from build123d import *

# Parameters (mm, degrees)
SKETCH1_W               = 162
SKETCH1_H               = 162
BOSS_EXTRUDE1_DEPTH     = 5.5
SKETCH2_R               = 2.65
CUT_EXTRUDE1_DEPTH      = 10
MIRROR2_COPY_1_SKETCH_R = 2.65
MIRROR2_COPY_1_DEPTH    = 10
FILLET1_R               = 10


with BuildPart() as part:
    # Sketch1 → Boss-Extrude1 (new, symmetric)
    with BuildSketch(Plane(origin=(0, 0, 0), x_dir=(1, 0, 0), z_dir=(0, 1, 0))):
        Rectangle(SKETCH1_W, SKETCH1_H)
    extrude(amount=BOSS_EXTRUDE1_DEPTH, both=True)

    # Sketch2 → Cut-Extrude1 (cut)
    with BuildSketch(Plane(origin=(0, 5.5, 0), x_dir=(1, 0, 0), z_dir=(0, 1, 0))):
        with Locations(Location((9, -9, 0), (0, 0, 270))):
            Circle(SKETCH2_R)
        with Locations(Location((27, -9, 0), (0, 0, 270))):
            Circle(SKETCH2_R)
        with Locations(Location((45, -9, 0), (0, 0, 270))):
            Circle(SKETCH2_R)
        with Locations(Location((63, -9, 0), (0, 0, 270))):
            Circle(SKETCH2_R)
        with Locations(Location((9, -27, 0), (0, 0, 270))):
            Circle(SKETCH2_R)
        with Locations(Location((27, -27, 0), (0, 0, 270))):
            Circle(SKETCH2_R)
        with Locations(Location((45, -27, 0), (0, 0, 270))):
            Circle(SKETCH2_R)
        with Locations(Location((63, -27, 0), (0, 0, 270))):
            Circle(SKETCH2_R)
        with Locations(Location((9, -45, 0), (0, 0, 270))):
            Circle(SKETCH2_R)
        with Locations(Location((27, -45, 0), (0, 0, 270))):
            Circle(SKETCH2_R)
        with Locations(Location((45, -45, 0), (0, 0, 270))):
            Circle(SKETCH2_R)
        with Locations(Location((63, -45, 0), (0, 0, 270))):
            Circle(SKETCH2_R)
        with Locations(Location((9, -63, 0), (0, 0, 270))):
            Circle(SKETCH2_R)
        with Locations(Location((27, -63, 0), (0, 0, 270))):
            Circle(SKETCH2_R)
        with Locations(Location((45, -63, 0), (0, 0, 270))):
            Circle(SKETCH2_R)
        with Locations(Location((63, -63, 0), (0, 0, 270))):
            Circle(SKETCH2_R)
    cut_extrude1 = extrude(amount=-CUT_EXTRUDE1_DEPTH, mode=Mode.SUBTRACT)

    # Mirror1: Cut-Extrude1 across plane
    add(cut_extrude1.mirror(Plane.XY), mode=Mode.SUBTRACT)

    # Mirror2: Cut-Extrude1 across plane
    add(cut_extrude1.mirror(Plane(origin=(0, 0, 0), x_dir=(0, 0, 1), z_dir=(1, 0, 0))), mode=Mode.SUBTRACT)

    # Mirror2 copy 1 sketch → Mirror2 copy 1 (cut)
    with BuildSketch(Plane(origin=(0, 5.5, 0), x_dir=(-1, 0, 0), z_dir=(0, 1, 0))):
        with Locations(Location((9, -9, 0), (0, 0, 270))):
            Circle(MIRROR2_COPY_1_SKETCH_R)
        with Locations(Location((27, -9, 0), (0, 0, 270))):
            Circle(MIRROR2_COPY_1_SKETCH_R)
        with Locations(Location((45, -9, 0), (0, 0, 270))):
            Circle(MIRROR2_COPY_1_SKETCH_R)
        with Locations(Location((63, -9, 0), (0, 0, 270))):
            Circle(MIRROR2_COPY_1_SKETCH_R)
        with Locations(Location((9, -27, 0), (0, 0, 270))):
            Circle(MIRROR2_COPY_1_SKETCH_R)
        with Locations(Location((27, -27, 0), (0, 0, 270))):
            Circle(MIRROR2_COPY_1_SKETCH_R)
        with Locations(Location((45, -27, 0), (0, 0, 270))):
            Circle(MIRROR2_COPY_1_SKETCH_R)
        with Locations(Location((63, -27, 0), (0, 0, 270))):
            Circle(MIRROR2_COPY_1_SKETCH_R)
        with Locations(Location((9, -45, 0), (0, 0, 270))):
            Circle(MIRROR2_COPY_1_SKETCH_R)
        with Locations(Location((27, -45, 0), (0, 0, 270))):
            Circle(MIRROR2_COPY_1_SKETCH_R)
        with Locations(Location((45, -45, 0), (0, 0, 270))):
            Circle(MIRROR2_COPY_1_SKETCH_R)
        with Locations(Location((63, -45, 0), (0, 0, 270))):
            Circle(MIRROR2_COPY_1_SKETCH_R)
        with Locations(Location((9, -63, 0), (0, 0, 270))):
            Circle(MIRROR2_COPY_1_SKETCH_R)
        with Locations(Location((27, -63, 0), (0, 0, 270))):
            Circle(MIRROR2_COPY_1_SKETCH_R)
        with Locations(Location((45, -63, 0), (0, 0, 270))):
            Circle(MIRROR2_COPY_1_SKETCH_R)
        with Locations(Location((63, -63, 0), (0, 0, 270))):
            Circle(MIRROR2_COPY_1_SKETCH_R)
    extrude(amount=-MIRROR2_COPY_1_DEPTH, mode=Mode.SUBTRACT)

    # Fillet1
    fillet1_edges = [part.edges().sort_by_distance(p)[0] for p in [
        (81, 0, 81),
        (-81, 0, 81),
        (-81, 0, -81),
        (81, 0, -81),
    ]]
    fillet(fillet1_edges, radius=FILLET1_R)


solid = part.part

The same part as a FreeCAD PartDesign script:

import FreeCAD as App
import Part
import Sketcher

V = App.Vector
Q = App.Units.Quantity


def edges_at(feature, points):
    """Names of the edges that pass closest to the given points."""
    edges = feature.Shape.Edges
    near = lambda p: min(range(len(edges)), key=lambda i: edges[i].distToShape(Part.Vertex(*p))[0])
    return sorted({f"Edge{near(p) + 1}" for p in points})


def add_polygon(sketch, points):
    """Adds a closed chain of lines whose ends are joined by coincident constraints."""
    first, n = sketch.GeometryCount, len(points)
    for a, b in zip(points, points[1:] + points[:1]):
        sketch.addGeometry(Part.LineSegment(App.Vector(*a, 0), App.Vector(*b, 0)), False)
    for i in range(n):
        sketch.addConstraint(Sketcher.Constraint("Coincident", first + i, 2, first + (i + 1) % n, 1))

doc = App.newDocument("Part")
params = doc.addObject("Spreadsheet::Sheet", "Params")
for row, (alias, value) in enumerate([
    ("sketch1_width", "162 mm"),
    ("pad1_length", "11 mm"),
    ("sketch2_diameter", "5.3 mm"),
    ("pocket1_length", "10 mm"),
    ("sketch3_diameter", "5.3 mm"),
    ("pocket2_length", "10 mm"),
    ("fillet_radius", "10 mm"),
], start=1):
    params.set(f"A{row}", alias)
    params.set(f"B{row}", "=" + value)
    params.setAlias(f"B{row}", alias)

body = doc.addObject("PartDesign::Body", "Body")

sketch1 = body.newObject("Sketcher::SketchObject", "Sketch")
sketch1.AttachmentSupport = (doc.getObject("XZ_Plane"), [""])
sketch1.MapMode = "FlatFace"
add_polygon(sketch1, [(-81, -81), (-81, 81), (81, 81), (81, -81)])
sketch1.addConstraint([
    Sketcher.Constraint("Vertical", 0),
    Sketcher.Constraint("Horizontal", 1),
    Sketcher.Constraint("Vertical", 2),
    Sketcher.Constraint("Horizontal", 3),
    Sketcher.Constraint("Symmetric", 0, 2, 2, 2, -1, 1),
    Sketcher.Constraint("Equal", 3, 0),
    Sketcher.Constraint("DistanceX", 1, 1, 1, 2, Q("162 mm")),
])
sketch1.setExpression("Constraints[10]", "Params.sketch1_width")
pad1 = body.newObject("PartDesign::Pad", "Pad")
pad1.Profile = sketch1
pad1.setExpression("Length", "Params.pad1_length")
pad1.Midplane = True

sketch2 = body.newObject("Sketcher::SketchObject", "Sketch001")
sketch2.AttachmentSupport = (doc.getObject("XZ_Plane"), [""])
sketch2.MapMode = "FlatFace"
sketch2.AttachmentOffset = App.Placement(V(0, 0, -5.5), App.Rotation())
sketch2.addGeometry([
    Part.Circle(V(9, 9, 0), V(0, 0, 1), 2.65),
    Part.Circle(V(27, 9, 0), V(0, 0, 1), 2.65),
    Part.Circle(V(45, 9, 0), V(0, 0, 1), 2.65),
    Part.Circle(V(63, 9, 0), V(0, 0, 1), 2.65),
    Part.Circle(V(9, 27, 0), V(0, 0, 1), 2.65),
    Part.Circle(V(27, 27, 0), V(0, 0, 1), 2.65),
    Part.Circle(V(45, 27, 0), V(0, 0, 1), 2.65),
    Part.Circle(V(63, 27, 0), V(0, 0, 1), 2.65),
    Part.Circle(V(9, 45, 0), V(0, 0, 1), 2.65),
    Part.Circle(V(27, 45, 0), V(0, 0, 1), 2.65),
    Part.Circle(V(45, 45, 0), V(0, 0, 1), 2.65),
    Part.Circle(V(63, 45, 0), V(0, 0, 1), 2.65),
    Part.Circle(V(9, 63, 0), V(0, 0, 1), 2.65),
    Part.Circle(V(27, 63, 0), V(0, 0, 1), 2.65),
    Part.Circle(V(45, 63, 0), V(0, 0, 1), 2.65),
    Part.Circle(V(63, 63, 0), V(0, 0, 1), 2.65),
], False)
sketch2.addConstraint([
    Sketcher.Constraint("Equal", 0, 1),
    Sketcher.Constraint("Equal", 1, 2),
    Sketcher.Constraint("Equal", 2, 3),
    Sketcher.Constraint("Equal", 3, 4),
    Sketcher.Constraint("Equal", 4, 5),
    Sketcher.Constraint("Equal", 5, 6),
    Sketcher.Constraint("Equal", 6, 7),
    Sketcher.Constraint("Equal", 7, 8),
    Sketcher.Constraint("Equal", 8, 9),
    Sketcher.Constraint("Equal", 9, 10),
    Sketcher.Constraint("Equal", 10, 11),
    Sketcher.Constraint("Equal", 11, 12),
    Sketcher.Constraint("Equal", 12, 13),
    Sketcher.Constraint("Equal", 13, 14),
    Sketcher.Constraint("Equal", 14, 15),
    Sketcher.Constraint("Horizontal", 0, 3, 1, 3),
    Sketcher.Constraint("Horizontal", 1, 3, 2, 3),
    Sketcher.Constraint("Horizontal", 2, 3, 3, 3),
    Sketcher.Constraint("Horizontal", 4, 3, 5, 3),
    Sketcher.Constraint("Horizontal", 5, 3, 6, 3),
    Sketcher.Constraint("Horizontal", 6, 3, 7, 3),
    Sketcher.Constraint("Horizontal", 8, 3, 9, 3),
    Sketcher.Constraint("Horizontal", 9, 3, 10, 3),
    Sketcher.Constraint("Horizontal", 10, 3, 11, 3),
    Sketcher.Constraint("Horizontal", 12, 3, 13, 3),
    Sketcher.Constraint("Horizontal", 13, 3, 14, 3),
    Sketcher.Constraint("Horizontal", 14, 3, 15, 3),
    Sketcher.Constraint("Vertical", 0, 3, 4, 3),
    Sketcher.Constraint("Vertical", 1, 3, 5, 3),
    Sketcher.Constraint("Vertical", 2, 3, 6, 3),
    Sketcher.Constraint("Vertical", 3, 3, 7, 3),
    Sketcher.Constraint("Vertical", 4, 3, 8, 3),
    Sketcher.Constraint("Vertical", 5, 3, 9, 3),
    Sketcher.Constraint("Vertical", 6, 3, 10, 3),
    Sketcher.Constraint("Vertical", 7, 3, 11, 3),
    Sketcher.Constraint("Vertical", 8, 3, 12, 3),
    Sketcher.Constraint("Vertical", 9, 3, 13, 3),
    Sketcher.Constraint("Vertical", 10, 3, 14, 3),
    Sketcher.Constraint("Vertical", 11, 3, 15, 3),
    Sketcher.Constraint("Diameter", 0, Q("5.3 mm")),
    Sketcher.Constraint("DistanceX", -1, 1, 0, 3, Q("9 mm")),
    Sketcher.Constraint("DistanceY", -1, 1, 0, 3, Q("9 mm")),
    Sketcher.Constraint("DistanceX", -1, 1, 1, 3, Q("27 mm")),
    Sketcher.Constraint("DistanceX", -1, 1, 2, 3, Q("45 mm")),
    Sketcher.Constraint("DistanceX", -1, 1, 3, 3, Q("63 mm")),
    Sketcher.Constraint("DistanceY", -1, 1, 4, 3, Q("27 mm")),
    Sketcher.Constraint("DistanceY", -1, 1, 8, 3, Q("45 mm")),
    Sketcher.Constraint("DistanceY", -1, 1, 12, 3, Q("63 mm")),
])
sketch2.setExpression("Constraints[39]", "Params.sketch2_diameter")
pocket1 = body.newObject("PartDesign::Pocket", "Pocket")
pocket1.Profile = sketch2
pocket1.setExpression("Length", "Params.pocket1_length")
pocket1.Reversed = True
doc.recompute()

mirrored = body.newObject("PartDesign::Mirrored", "Mirrored")
mirrored.Originals = [pocket1]
mirrored.MirrorPlane = (doc.getObject("XY_Plane"), [""])
body.Tip = mirrored
doc.recompute()

mirrored2 = body.newObject("PartDesign::Mirrored", "Mirrored001")
mirrored2.Originals = [pocket1]
mirrored2.MirrorPlane = (doc.getObject("YZ_Plane"), [""])
body.Tip = mirrored2

sketch3 = body.newObject("Sketcher::SketchObject", "Sketch002")
sketch3.AttachmentSupport = (doc.getObject("XZ_Plane"), [""])
sketch3.MapMode = "FlatFace"
sketch3.AttachmentOffset = App.Placement(V(0, 0, -5.5), App.Rotation())
sketch3.addGeometry([
    Part.Circle(V(-9, -9, 0), V(0, 0, 1), 2.65),
    Part.Circle(V(-27, -9, 0), V(0, 0, 1), 2.65),
    Part.Circle(V(-45, -9, 0), V(0, 0, 1), 2.65),
    Part.Circle(V(-63, -9, 0), V(0, 0, 1), 2.65),
    Part.Circle(V(-9, -27, 0), V(0, 0, 1), 2.65),
    Part.Circle(V(-27, -27, 0), V(0, 0, 1), 2.65),
    Part.Circle(V(-45, -27, 0), V(0, 0, 1), 2.65),
    Part.Circle(V(-63, -27, 0), V(0, 0, 1), 2.65),
    Part.Circle(V(-9, -45, 0), V(0, 0, 1), 2.65),
    Part.Circle(V(-27, -45, 0), V(0, 0, 1), 2.65),
    Part.Circle(V(-45, -45, 0), V(0, 0, 1), 2.65),
    Part.Circle(V(-63, -45, 0), V(0, 0, 1), 2.65),
    Part.Circle(V(-9, -63, 0), V(0, 0, 1), 2.65),
    Part.Circle(V(-27, -63, 0), V(0, 0, 1), 2.65),
    Part.Circle(V(-45, -63, 0), V(0, 0, 1), 2.65),
    Part.Circle(V(-63, -63, 0), V(0, 0, 1), 2.65),
], False)
sketch3.addConstraint([
    Sketcher.Constraint("Equal", 0, 1),
    Sketcher.Constraint("Equal", 1, 2),
    Sketcher.Constraint("Equal", 2, 3),
    Sketcher.Constraint("Equal", 3, 4),
    Sketcher.Constraint("Equal", 4, 5),
    Sketcher.Constraint("Equal", 5, 6),
    Sketcher.Constraint("Equal", 6, 7),
    Sketcher.Constraint("Equal", 7, 8),
    Sketcher.Constraint("Equal", 8, 9),
    Sketcher.Constraint("Equal", 9, 10),
    Sketcher.Constraint("Equal", 10, 11),
    Sketcher.Constraint("Equal", 11, 12),
    Sketcher.Constraint("Equal", 12, 13),
    Sketcher.Constraint("Equal", 13, 14),
    Sketcher.Constraint("Equal", 14, 15),
    Sketcher.Constraint("Horizontal", 0, 3, 1, 3),
    Sketcher.Constraint("Horizontal", 1, 3, 2, 3),
    Sketcher.Constraint("Horizontal", 2, 3, 3, 3),
    Sketcher.Constraint("Horizontal", 4, 3, 5, 3),
    Sketcher.Constraint("Horizontal", 5, 3, 6, 3),
    Sketcher.Constraint("Horizontal", 6, 3, 7, 3),
    Sketcher.Constraint("Horizontal", 8, 3, 9, 3),
    Sketcher.Constraint("Horizontal", 9, 3, 10, 3),
    Sketcher.Constraint("Horizontal", 10, 3, 11, 3),
    Sketcher.Constraint("Horizontal", 12, 3, 13, 3),
    Sketcher.Constraint("Horizontal", 13, 3, 14, 3),
    Sketcher.Constraint("Horizontal", 14, 3, 15, 3),
    Sketcher.Constraint("Vertical", 0, 3, 4, 3),
    Sketcher.Constraint("Vertical", 1, 3, 5, 3),
    Sketcher.Constraint("Vertical", 2, 3, 6, 3),
    Sketcher.Constraint("Vertical", 3, 3, 7, 3),
    Sketcher.Constraint("Vertical", 4, 3, 8, 3),
    Sketcher.Constraint("Vertical", 5, 3, 9, 3),
    Sketcher.Constraint("Vertical", 6, 3, 10, 3),
    Sketcher.Constraint("Vertical", 7, 3, 11, 3),
    Sketcher.Constraint("Vertical", 8, 3, 12, 3),
    Sketcher.Constraint("Vertical", 9, 3, 13, 3),
    Sketcher.Constraint("Vertical", 10, 3, 14, 3),
    Sketcher.Constraint("Vertical", 11, 3, 15, 3),
    Sketcher.Constraint("Diameter", 0, Q("5.3 mm")),
    Sketcher.Constraint("DistanceX", 0, 3, -1, 1, Q("9 mm")),
    Sketcher.Constraint("DistanceY", 0, 3, -1, 1, Q("9 mm")),
    Sketcher.Constraint("DistanceX", 1, 3, -1, 1, Q("27 mm")),
    Sketcher.Constraint("DistanceX", 2, 3, -1, 1, Q("45 mm")),
    Sketcher.Constraint("DistanceX", 3, 3, -1, 1, Q("63 mm")),
    Sketcher.Constraint("DistanceY", 4, 3, -1, 1, Q("27 mm")),
    Sketcher.Constraint("DistanceY", 8, 3, -1, 1, Q("45 mm")),
    Sketcher.Constraint("DistanceY", 12, 3, -1, 1, Q("63 mm")),
])
sketch3.setExpression("Constraints[39]", "Params.sketch3_diameter")
pocket2 = body.newObject("PartDesign::Pocket", "Pocket001")
pocket2.Profile = sketch3
pocket2.setExpression("Length", "Params.pocket2_length")
pocket2.Reversed = True
doc.recompute()

fillet = body.newObject("PartDesign::Fillet", "Fillet")
fillet.Base = (pocket2, edges_at(pocket2, [
    (81, 0, 81),
    (-81, 0, 81),
    (-81, 0, -81),
    (81, 0, -81),
]))
fillet.setExpression("Radius", "Params.fillet_radius")

doc.recompute()
